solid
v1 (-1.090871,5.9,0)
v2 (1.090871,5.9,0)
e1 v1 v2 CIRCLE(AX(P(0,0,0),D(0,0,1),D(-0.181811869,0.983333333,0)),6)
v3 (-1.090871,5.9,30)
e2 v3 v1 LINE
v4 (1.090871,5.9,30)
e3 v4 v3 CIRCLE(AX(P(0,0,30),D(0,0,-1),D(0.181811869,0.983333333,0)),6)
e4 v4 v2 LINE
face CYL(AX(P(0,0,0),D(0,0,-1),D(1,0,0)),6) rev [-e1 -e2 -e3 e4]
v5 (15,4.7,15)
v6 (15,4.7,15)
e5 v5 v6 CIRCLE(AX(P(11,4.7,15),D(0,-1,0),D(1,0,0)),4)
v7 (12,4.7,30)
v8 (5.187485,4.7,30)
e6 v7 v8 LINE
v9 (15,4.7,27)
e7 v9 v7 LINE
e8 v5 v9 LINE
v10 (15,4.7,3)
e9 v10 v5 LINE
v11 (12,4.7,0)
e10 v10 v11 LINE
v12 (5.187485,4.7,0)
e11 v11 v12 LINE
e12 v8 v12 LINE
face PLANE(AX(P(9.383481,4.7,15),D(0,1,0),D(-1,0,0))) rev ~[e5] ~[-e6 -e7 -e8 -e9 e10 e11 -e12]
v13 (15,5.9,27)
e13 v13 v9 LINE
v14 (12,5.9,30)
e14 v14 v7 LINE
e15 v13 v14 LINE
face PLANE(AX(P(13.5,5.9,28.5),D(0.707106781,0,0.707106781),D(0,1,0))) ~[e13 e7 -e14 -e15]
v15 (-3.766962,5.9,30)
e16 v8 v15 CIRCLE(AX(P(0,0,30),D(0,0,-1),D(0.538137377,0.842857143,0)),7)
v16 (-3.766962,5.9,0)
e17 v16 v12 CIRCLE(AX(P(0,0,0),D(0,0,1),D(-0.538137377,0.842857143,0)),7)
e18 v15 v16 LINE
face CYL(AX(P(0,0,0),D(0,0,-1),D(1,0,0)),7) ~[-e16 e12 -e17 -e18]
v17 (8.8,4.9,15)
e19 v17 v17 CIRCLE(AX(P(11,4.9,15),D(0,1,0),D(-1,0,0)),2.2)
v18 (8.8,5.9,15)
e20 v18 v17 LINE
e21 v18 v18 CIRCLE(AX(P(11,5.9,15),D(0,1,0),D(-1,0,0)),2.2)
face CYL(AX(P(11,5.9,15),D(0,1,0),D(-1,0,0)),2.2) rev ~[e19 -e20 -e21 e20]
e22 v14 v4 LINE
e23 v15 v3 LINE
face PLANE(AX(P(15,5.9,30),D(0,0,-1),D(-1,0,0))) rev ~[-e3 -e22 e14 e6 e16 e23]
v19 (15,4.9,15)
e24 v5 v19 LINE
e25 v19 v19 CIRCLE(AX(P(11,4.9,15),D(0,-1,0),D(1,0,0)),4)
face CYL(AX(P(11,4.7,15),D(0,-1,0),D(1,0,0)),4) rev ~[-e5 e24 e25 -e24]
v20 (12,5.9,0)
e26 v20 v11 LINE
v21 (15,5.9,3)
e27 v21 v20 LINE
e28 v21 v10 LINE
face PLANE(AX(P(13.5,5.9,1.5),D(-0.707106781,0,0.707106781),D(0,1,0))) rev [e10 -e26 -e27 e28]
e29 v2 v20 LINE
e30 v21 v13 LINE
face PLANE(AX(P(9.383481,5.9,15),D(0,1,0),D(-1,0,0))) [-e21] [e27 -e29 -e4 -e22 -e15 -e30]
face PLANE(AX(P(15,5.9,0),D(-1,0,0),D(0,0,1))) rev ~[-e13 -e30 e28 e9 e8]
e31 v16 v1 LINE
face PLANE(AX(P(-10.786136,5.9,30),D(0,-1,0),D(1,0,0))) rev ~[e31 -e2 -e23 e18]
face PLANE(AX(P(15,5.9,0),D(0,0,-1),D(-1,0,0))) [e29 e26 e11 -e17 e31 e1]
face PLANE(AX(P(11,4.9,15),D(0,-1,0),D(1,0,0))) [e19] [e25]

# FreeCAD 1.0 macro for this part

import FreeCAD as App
import Part
import Sketcher
from FreeCAD import Vector


def edges_at(feature, points):
    """Names of the edges that pass closest to the given points."""
    edges = feature.Shape.Edges
    near = lambda p: min(range(len(edges)), key=lambda i: edges[i].distToShape(Part.Vertex(*p))[0])
    return sorted({f"Edge{near(p) + 1}" for p in points})

doc = App.newDocument("Part")
params = doc.addObject("Spreadsheet::Sheet", "Params")
for row, (alias, value) in enumerate([
    ("sketch1_diameter", "14 mm"),
    ("sketch1_diameter2", "12 mm"),
    ("pad1_length", "30 mm"),
    ("sketch3_diameter", "4.4 mm"),
    ("sketch3_height", "30 mm"),
    ("pad2_length", "1.2 mm"),
    ("sketch4_diameter", "8 mm"),
    ("pocket2_length", "0.2 mm"),
    ("chamfer_size", "3 mm"),
], start=1):
    params.set(f"A{row}", alias)
    params.set(f"B{row}", "=" + value)
    params.setAlias(f"B{row}", alias)

body = doc.addObject("PartDesign::Body", "Body")

sketch1 = body.newObject("Sketcher::SketchObject", "Sketch")
sketch1.AttachmentSupport = (doc.getObject("XY_Plane"), [""])
sketch1.MapMode = "FlatFace"
sketch1.addGeometry([
    Part.Circle(Vector(0, 0, 0), Vector(0, 0, 1), 7),
    Part.Circle(Vector(0, 0, 0), Vector(0, 0, 1), 6),
], False)
sketch1.addConstraint([
    Sketcher.Constraint("Coincident", 0, 3, -1, 1),
    Sketcher.Constraint("Coincident", 1, 3, -1, 1),
    Sketcher.Constraint("Diameter", 0, 14.0),
    Sketcher.Constraint("Diameter", 1, 12.0),
])
sketch1.setExpression("Constraints[2]", "Params.sketch1_diameter")
sketch1.setExpression("Constraints[3]", "Params.sketch1_diameter2")
pad1 = body.newObject("PartDesign::Pad", "Pad")
pad1.Profile = sketch1
pad1.setExpression("Length", "Params.pad1_length")

sketch2 = body.newObject("Sketcher::SketchObject", "Sketch001")
sketch2.AttachmentSupport = (doc.getObject("XY_Plane"), [""])
sketch2.MapMode = "FlatFace"
sketch2.AttachmentOffset = App.Placement(Vector(0, 0, 30), App.Rotation())
sketch2.addGeometry([
    Part.LineSegment(Vector(-11, 11, 0), Vector(-11, 6, 0)),
    Part.LineSegment(Vector(-11, 6, 0), Vector(10, 6, 0)),
    Part.LineSegment(Vector(10, 6, 0), Vector(10, 11, 0)),
    Part.LineSegment(Vector(10, 11, 0), Vector(-11, 11, 0)),
], False)
sketch2.addConstraint([
    Sketcher.Constraint("Coincident", 0, 2, 1, 1),
    Sketcher.Constraint("Coincident", 1, 2, 2, 1),
    Sketcher.Constraint("Coincident", 2, 2, 3, 1),
    Sketcher.Constraint("Coincident", 3, 2, 0, 1),
    Sketcher.Constraint("Vertical", 0),
    Sketcher.Constraint("Horizontal", 1),
    Sketcher.Constraint("Vertical", 2),
    Sketcher.Constraint("Horizontal", 3),
    Sketcher.Constraint("DistanceY", -1, 1, 0, 2, 5.9),
    Sketcher.Constraint("DistanceX", 1, 1, 1, 2, 21.169265),
    Sketcher.Constraint("DistanceY", 0, 2, 0, 1, 5.002638),
    Sketcher.Constraint("DistanceX", -1, 1, 1, 2, 10.38313),
])
pocket1 = body.newObject("PartDesign::Pocket", "Pocket")
pocket1.Profile = sketch2
pocket1.Type = "ThroughAll"

sketch3 = body.newObject("Sketcher::SketchObject", "Sketch002")
sketch3.AttachmentSupport = (doc.getObject("XZ_Plane"), [""])
sketch3.MapMode = "FlatFace"
sketch3.AttachmentOffset = App.Placement(Vector(0, 0, -5.9), App.Rotation())
sketch3.addGeometry([
    Part.LineSegment(Vector(15, 30, 0), Vector(15, 0, 0)),
    Part.LineSegment(Vector(15, 0, 0), Vector(3.8, 0, 0)),
    Part.LineSegment(Vector(3.8, 0, 0), Vector(3.8, 30, 0)),
    Part.LineSegment(Vector(3.8, 30, 0), Vector(15, 30, 0)),
    Part.Circle(Vector(11, 15, 0), Vector(0, 0, 1), 2.2),
], False)
sketch3.addConstraint([
    Sketcher.Constraint("Coincident", 0, 2, 1, 1),
    Sketcher.Constraint("Coincident", 1, 2, 2, 1),
    Sketcher.Constraint("Coincident", 2, 2, 3, 1),
    Sketcher.Constraint("Coincident", 3, 2, 0, 1),
    Sketcher.Constraint("Vertical", 0),
    Sketcher.Constraint("Horizontal", 1),
    Sketcher.Constraint("Vertical", 2),
    Sketcher.Constraint("Horizontal", 3),
    Sketcher.Constraint("PointOnObject", 0, 2, -1),
    Sketcher.Constraint("Diameter", 4, 4.4),
    Sketcher.Constraint("DistanceY", 0, 2, 0, 1, 30.0),
    Sketcher.Constraint("DistanceX", -1, 1, 4, 3, 11.0),
    Sketcher.Constraint("DistanceY", -1, 1, 4, 3, 15.0),
    Sketcher.Constraint("DistanceX", -1, 1, 0, 2, 15.0),
    Sketcher.Constraint("DistanceX", 1, 2, 1, 1, 11.233038),
])
sketch3.setExpression("Constraints[9]", "Params.sketch3_diameter")
sketch3.setExpression("Constraints[10]", "Params.sketch3_height")
pad2 = body.newObject("PartDesign::Pad", "Pad001")
pad2.Profile = sketch3
pad2.setExpression("Length", "Params.pad2_length")

sketch4 = body.newObject("Sketcher::SketchObject", "Sketch003")
sketch4.AttachmentSupport = (doc.getObject("XZ_Plane"), [""])
sketch4.MapMode = "FlatFace"
sketch4.AttachmentOffset = App.Placement(Vector(0, 0, -4.7), App.Rotation())
sketch4.addGeometry(Part.Circle(Vector(11, 15, 0), Vector(0, 0, 1), 4), False)
sketch4.addConstraint([
    Sketcher.Constraint("Diameter", 0, 8.0),
    Sketcher.Constraint("DistanceX", -1, 1, 0, 3, 11.0),
    Sketcher.Constraint("DistanceY", -1, 1, 0, 3, 15.0),
])
sketch4.setExpression("Constraints[0]", "Params.sketch4_diameter")
pocket2 = body.newObject("PartDesign::Pocket", "Pocket001")
pocket2.Profile = sketch4
pocket2.setExpression("Length", "Params.pocket2_length")
doc.recompute()

chamfer = body.newObject("PartDesign::Chamfer", "Chamfer")
chamfer.Base = (pocket2, edges_at(pocket2, [(15, 5.3, 0), (15, 5.3, 30)]))
chamfer.setExpression("Size", "Params.chamfer_size")

doc.recompute()
